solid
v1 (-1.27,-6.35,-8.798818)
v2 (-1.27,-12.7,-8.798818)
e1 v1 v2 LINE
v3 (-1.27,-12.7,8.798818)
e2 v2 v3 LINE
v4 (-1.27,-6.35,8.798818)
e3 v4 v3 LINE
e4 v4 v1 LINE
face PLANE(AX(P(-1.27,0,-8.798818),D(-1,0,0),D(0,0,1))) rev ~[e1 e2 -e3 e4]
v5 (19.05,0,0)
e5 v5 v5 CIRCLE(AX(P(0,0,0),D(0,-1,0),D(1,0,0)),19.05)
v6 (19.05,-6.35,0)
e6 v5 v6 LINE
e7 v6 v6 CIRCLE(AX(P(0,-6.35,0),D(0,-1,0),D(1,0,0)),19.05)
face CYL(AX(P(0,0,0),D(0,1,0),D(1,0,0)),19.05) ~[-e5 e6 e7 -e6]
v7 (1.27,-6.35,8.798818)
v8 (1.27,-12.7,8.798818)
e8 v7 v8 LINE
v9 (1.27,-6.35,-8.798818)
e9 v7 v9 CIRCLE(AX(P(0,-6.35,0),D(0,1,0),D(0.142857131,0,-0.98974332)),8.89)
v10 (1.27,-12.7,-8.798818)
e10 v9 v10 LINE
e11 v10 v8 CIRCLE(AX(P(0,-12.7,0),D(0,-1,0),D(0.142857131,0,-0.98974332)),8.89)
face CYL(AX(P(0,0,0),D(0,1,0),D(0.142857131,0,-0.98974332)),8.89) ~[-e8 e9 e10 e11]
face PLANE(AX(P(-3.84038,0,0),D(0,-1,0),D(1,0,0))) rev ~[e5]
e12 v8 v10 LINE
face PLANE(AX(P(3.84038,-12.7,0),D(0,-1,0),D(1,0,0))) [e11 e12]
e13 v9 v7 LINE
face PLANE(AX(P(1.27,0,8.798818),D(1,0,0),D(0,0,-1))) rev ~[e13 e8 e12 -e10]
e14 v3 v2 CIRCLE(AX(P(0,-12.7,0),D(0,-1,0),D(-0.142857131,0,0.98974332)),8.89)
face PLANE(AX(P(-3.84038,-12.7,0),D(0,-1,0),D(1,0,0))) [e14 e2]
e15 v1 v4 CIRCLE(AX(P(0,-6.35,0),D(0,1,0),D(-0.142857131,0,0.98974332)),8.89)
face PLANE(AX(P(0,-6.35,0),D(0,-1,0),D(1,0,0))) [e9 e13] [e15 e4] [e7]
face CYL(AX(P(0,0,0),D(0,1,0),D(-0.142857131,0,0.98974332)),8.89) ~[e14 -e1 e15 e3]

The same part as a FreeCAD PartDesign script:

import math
import FreeCAD as App
import Part
import Sketcher

V = App.Vector
Q = App.Units.Quantity

doc = App.newDocument("Part")
body = doc.addObject("PartDesign::Body", "Body")

# Sketch on XZ plane
sketch1 = body.newObject("Sketcher::SketchObject", "Sketch")
sketch1.AttachmentSupport = (doc.getObject("XZ_Plane"), [""])
sketch1.MapMode = "FlatFace"
sketch1.addGeometry(Part.Circle(V(0, 0, 0), V(0, 0, 1), 19), False)
sketch1.addConstraint(Sketcher.Constraint("Coincident", 0, 3, -1, 1))
sketch1.addConstraint(Sketcher.Constraint("Diameter", 0, Q("1.5 in")))
pad1 = body.newObject("PartDesign::Pad", "Pad")
pad1.Profile = sketch1
pad1.Length = Q("0.25 in")

# Sketch on XZ plane
sketch2 = body.newObject("Sketcher::SketchObject", "Sketch001")
sketch2.AttachmentSupport = (doc.getObject("XZ_Plane"), [""])
sketch2.MapMode = "FlatFace"
sketch2.addGeometry(Part.LineSegment(V(-1, -9, 0), V(-1, 9, 0)), False)
sketch2.addGeometry(Part.ArcOfCircle(Part.Circle(V(0, 0, 0), V(0, 0, 1), 9), math.radians(98), math.radians(262)), False)
sketch2.addGeometry(Part.ArcOfCircle(Part.Circle(V(0, 0, 0), V(0, 0, 1), 9), math.radians(-82), math.radians(82)), False)
sketch2.addGeometry(Part.LineSegment(V(1, 9, 0), V(1, -9, 0)), False)
sketch2.addConstraint(Sketcher.Constraint("Coincident", 0, 1, 1, 2))
sketch2.addConstraint(Sketcher.Constraint("Coincident", 1, 1, 0, 2))
sketch2.addConstraint(Sketcher.Constraint("Coincident", 2, 1, 3, 2))
sketch2.addConstraint(Sketcher.Constraint("Coincident", 3, 1, 2, 2))
sketch2.addConstraint(Sketcher.Constraint("Vertical", 0))
sketch2.addConstraint(Sketcher.Constraint("Vertical", 3))
sketch2.addConstraint(Sketcher.Constraint("Coincident", 1, 3, -1, 1))
sketch2.addConstraint(Sketcher.Constraint("Coincident", 2, 3, -1, 1))
sketch2.addConstraint(Sketcher.Constraint("Equal", 1, 2))
sketch2.addConstraint(Sketcher.Constraint("Horizontal", 0, 1, 2, 1))
sketch2.addConstraint(Sketcher.Constraint("Radius", 1, Q("0.35 in")))
sketch2.addConstraint(Sketcher.Constraint("DistanceX", 0, 1, 2, 1, Q("0.1 in")))
pad2 = body.newObject("PartDesign::Pad", "Pad001")
pad2.Profile = sketch2
pad2.Length = Q("1.5 in")

# Sketch on XZ plane
sketch3 = body.newObject("Sketcher::SketchObject", "Sketch002")
sketch3.AttachmentSupport = (doc.getObject("XZ_Plane"), [""])
sketch3.MapMode = "FlatFace"
sketch3.AttachmentOffset = App.Placement(V(0, 0, 1.5 * 25.4), App.Rotation())
sketch3.addGeometry(Part.LineSegment(V(1, 9, 0), V(1, -9, 0)), False)
sketch3.addGeometry(Part.ArcOfCircle(Part.Circle(V(0, 0, 0), V(0, 0, 1), 9), math.radians(-82), math.radians(82)), False)
sketch3.addGeometry(Part.LineSegment(V(-1, -9, 0), V(-1, 9, 0)), False)
sketch3.addGeometry(Part.ArcOfCircle(Part.Circle(V(0, 0, 0), V(0, 0, 1), 9), math.radians(98), math.radians(262)), False)
sketch3.addConstraint(Sketcher.Constraint("Coincident", 0, 1, 1, 2))
sketch3.addConstraint(Sketcher.Constraint("Coincident", 1, 1, 0, 2))
sketch3.addConstraint(Sketcher.Constraint("Coincident", 2, 1, 3, 2))
sketch3.addConstraint(Sketcher.Constraint("Coincident", 3, 1, 2, 2))
sketch3.addConstraint(Sketcher.Constraint("Vertical", 0))
sketch3.addConstraint(Sketcher.Constraint("Vertical", 2))
sketch3.addConstraint(Sketcher.Constraint("Coincident", 1, 3, -1, 1))
sketch3.addConstraint(Sketcher.Constraint("Coincident", 3, 3, -1, 1))
sketch3.addConstraint(Sketcher.Constraint("Equal", 1, 3))
sketch3.addConstraint(Sketcher.Constraint("Horizontal", 1, 1, 2, 1))
sketch3.addConstraint(Sketcher.Constraint("Radius", 1, Q("0.35 in")))
sketch3.addConstraint(Sketcher.Constraint("DistanceX", 2, 1, 1, 1, Q("0.1 in")))
pocket1 = body.newObject("PartDesign::Pocket", "Pocket")
pocket1.Profile = sketch3
pocket1.Length = Q("1 in")

doc.recompute()
